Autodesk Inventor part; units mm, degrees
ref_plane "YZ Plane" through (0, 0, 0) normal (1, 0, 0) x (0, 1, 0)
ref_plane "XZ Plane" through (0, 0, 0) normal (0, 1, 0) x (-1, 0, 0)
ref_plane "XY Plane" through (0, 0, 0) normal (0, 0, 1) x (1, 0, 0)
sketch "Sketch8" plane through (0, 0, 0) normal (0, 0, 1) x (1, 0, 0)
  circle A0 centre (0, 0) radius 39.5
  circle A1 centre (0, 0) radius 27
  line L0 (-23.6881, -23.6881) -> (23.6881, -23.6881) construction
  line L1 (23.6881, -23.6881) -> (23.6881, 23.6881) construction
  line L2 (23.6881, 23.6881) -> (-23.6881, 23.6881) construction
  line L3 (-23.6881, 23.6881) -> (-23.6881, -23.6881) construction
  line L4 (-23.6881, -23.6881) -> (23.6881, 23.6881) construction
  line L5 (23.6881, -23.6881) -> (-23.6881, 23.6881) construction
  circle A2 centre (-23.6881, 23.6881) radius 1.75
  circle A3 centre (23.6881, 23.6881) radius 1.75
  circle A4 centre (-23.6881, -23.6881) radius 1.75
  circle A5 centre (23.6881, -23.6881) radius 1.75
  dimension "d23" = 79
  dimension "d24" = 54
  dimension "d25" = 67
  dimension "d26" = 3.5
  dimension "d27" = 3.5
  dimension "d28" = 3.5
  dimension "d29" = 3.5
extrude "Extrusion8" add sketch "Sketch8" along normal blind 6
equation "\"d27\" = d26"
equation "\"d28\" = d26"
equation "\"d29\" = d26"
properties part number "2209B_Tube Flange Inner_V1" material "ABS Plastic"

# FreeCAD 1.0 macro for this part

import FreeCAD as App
import Part
import Sketcher
Q = App.Units.Quantity

doc = App.newDocument("Part")
body = doc.addObject("PartDesign::Body", "Body")

# Sketch on XY plane
sketch1 = doc.addObject("Sketcher::SketchObject", "Sketch")
body.addObject(sketch1)
sketch1.AttachmentSupport = (doc.XY_Plane, [""])
sketch1.MapMode = "FlatFace"
sketch1.addGeometry([
    Part.Circle(App.Vector(0, 0, 0), App.Vector(0, 0, 1), 39.5),  # 0
    Part.Circle(App.Vector(-23.7, -23.7, 0), App.Vector(0, 0, 1), 1.8),  # 1
    Part.Circle(App.Vector(23.7, -23.7, 0), App.Vector(0, 0, 1), 1.8),  # 2
    Part.Circle(App.Vector(-23.7, 23.7, 0), App.Vector(0, 0, 1), 1.8),  # 3
    Part.Circle(App.Vector(0, 0, 0), App.Vector(0, 0, 1), 27),  # 4
    Part.Circle(App.Vector(23.7, 23.7, 0), App.Vector(0, 0, 1), 1.8),  # 5
], False)
sketch1.addConstraint([
    Sketcher.Constraint("Coincident", 0, 3, -1, 1),
    Sketcher.Constraint("Coincident", 4, 3, -1, 1),
    Sketcher.Constraint("Equal", 1, 2),
    Sketcher.Constraint("Equal", 2, 3),
    Sketcher.Constraint("Equal", 3, 5),
    Sketcher.Constraint("Symmetric", 2, 3, 3, 3, -1, 1),
    Sketcher.Constraint("Symmetric", 1, 3, 5, 3, -1, 1),
    Sketcher.Constraint("Symmetric", 1, 3, 2, 3, -2),
    Sketcher.Constraint("Diameter", 0, Q("79 mm")),
    Sketcher.Constraint("Diameter", 4, Q("54 mm")),
    Sketcher.Constraint("Diameter", 1, Q("3.5 mm")),
    Sketcher.Constraint("DistanceX", 1, 3, -1, 1, Q("23.688 mm")),
    Sketcher.Constraint("DistanceY", 1, 3, -1, 1, Q("23.688 mm")),
])
pad1 = doc.addObject("PartDesign::Pad", "Pad")
body.addObject(pad1)
pad1.Profile = sketch1
pad1.Length = 6

doc.recompute()
